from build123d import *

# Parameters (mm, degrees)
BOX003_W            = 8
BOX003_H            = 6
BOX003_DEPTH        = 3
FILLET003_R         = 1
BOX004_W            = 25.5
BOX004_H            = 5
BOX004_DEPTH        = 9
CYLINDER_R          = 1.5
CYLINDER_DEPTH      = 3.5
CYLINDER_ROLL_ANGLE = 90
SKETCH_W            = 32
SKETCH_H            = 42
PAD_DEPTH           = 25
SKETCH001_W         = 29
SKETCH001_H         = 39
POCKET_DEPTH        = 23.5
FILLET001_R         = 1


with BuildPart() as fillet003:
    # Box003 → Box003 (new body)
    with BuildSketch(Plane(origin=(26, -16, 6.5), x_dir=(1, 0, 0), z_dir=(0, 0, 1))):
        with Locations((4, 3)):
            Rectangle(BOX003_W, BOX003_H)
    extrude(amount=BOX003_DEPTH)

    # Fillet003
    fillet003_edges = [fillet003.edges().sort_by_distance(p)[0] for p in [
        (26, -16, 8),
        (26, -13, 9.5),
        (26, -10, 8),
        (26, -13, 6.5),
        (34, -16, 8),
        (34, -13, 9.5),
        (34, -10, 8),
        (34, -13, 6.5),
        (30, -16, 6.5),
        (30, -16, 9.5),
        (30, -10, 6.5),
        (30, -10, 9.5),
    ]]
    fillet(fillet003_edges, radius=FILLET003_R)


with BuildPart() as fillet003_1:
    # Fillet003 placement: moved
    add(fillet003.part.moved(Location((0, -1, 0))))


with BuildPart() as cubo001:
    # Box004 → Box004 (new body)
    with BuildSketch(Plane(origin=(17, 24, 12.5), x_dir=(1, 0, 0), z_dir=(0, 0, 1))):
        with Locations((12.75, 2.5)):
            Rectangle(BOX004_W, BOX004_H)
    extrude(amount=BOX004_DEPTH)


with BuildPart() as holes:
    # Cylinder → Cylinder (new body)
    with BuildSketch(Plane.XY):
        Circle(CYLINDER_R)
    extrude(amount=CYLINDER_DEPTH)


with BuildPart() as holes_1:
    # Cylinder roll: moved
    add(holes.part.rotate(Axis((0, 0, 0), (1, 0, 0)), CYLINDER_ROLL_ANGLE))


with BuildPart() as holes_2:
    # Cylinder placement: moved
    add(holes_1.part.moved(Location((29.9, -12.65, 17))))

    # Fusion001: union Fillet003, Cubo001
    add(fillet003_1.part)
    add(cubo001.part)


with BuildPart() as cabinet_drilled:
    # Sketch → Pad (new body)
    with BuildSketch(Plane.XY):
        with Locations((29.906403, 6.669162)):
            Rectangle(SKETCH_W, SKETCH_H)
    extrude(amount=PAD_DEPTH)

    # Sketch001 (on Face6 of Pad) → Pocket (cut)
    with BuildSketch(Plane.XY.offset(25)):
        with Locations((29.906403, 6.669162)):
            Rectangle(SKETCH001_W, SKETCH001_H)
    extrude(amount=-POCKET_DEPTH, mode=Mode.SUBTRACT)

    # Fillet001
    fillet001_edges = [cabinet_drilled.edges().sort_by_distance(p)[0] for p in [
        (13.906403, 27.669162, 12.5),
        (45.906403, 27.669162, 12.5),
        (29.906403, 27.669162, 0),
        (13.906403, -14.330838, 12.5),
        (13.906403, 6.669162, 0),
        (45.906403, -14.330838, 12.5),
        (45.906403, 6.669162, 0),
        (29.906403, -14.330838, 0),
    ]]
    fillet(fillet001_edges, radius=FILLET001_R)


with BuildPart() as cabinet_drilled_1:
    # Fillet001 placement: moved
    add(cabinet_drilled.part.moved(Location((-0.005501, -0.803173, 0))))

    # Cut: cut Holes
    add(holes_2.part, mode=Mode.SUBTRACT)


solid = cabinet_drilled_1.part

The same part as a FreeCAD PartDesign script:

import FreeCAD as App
import Part
import Sketcher


def edges_at(feature, points):
    """Names of the edges that pass closest to the given points."""
    edges = feature.Shape.Edges
    near = lambda p: min(range(len(edges)), key=lambda i: edges[i].distToShape(Part.Vertex(*p))[0])
    return sorted({f"Edge{near(p) + 1}" for p in points})

doc = App.newDocument("Part")
body = doc.addObject("PartDesign::Body", "Body")

# Sketch on XY plane
sketch1 = doc.addObject("Sketcher::SketchObject", "Sketch")
body.addObject(sketch1)
sketch1.AttachmentSupport = (doc.XY_Plane, [""])
sketch1.MapMode = "FlatFace"
sketch1.AttachmentOffset = App.Placement(App.Vector(0, 0, 6.5), App.Rotation())
sketch1.addGeometry([
    Part.LineSegment(App.Vector(26, -10, 0), App.Vector(26, -16, 0)),
    Part.LineSegment(App.Vector(26, -16, 0), App.Vector(34, -16, 0)),
    Part.LineSegment(App.Vector(34, -16, 0), App.Vector(34, -10, 0)),
    Part.LineSegment(App.Vector(34, -10, 0), App.Vector(26, -10, 0)),
], False)
sketch1.addConstraint([
    Sketcher.Constraint("Coincident", 0, 2, 1, 1),
    Sketcher.Constraint("Coincident", 1, 2, 2, 1),
    Sketcher.Constraint("Coincident", 2, 2, 3, 1),
    Sketcher.Constraint("Coincident", 3, 2, 0, 1),
    Sketcher.Constraint("Vertical", 0),
    Sketcher.Constraint("Horizontal", 1),
    Sketcher.Constraint("Vertical", 2),
    Sketcher.Constraint("Horizontal", 3),
    Sketcher.Constraint("DistanceX", 1, 1, 1, 2, 8.0),
    Sketcher.Constraint("DistanceY", 0, 2, 0, 1, 6.0),
    Sketcher.Constraint("DistanceX", -1, 1, 0, 2, 26.0),
    Sketcher.Constraint("DistanceY", 0, 2, -1, 1, 16.0),
])
pad1 = doc.addObject("PartDesign::Pad", "Pad")
body.addObject(pad1)
pad1.Profile = sketch1
pad1.Length = 3
doc.recompute()

fillet = doc.addObject("PartDesign::Fillet", "Fillet")
body.addObject(fillet)
fillet.Base = (pad1, ["Edge1"])
fillet.UseAllEdges = True
fillet.Radius = 1
body2 = doc.addObject("PartDesign::Body", "Body001")
doc.recompute()

body.Placement = App.Placement(App.Vector(0, -1, 0), App.Rotation(App.Vector(0, 0, 1), 0))
boolean = doc.addObject("PartDesign::Boolean", "Boolean")
body2.addObject(boolean)
boolean.Type = "Fuse"
boolean.addObjects([body])
body3 = doc.addObject("PartDesign::Body", "Body002")

# Sketch on XY plane
sketch2 = doc.addObject("Sketcher::SketchObject", "Sketch001")
body3.addObject(sketch2)
sketch2.AttachmentSupport = (doc.getObject("XY_Plane002"), [""])
sketch2.MapMode = "FlatFace"
sketch2.AttachmentOffset = App.Placement(App.Vector(0, 0, 12.5), App.Rotation())
sketch2.addGeometry([
    Part.LineSegment(App.Vector(17, 29, 0), App.Vector(17, 24, 0)),
    Part.LineSegment(App.Vector(17, 24, 0), App.Vector(42, 24, 0)),
    Part.LineSegment(App.Vector(42, 24, 0), App.Vector(42, 29, 0)),
    Part.LineSegment(App.Vector(42, 29, 0), App.Vector(17, 29, 0)),
], False)
sketch2.addConstraint([
    Sketcher.Constraint("Coincident", 0, 2, 1, 1),
    Sketcher.Constraint("Coincident", 1, 2, 2, 1),
    Sketcher.Constraint("Coincident", 2, 2, 3, 1),
    Sketcher.Constraint("Coincident", 3, 2, 0, 1),
    Sketcher.Constraint("Vertical", 0),
    Sketcher.Constraint("Horizontal", 1),
    Sketcher.Constraint("Vertical", 2),
    Sketcher.Constraint("Horizontal", 3),
    Sketcher.Constraint("DistanceY", 0, 2, 0, 1, 5.0),
    Sketcher.Constraint("DistanceX", 1, 1, 1, 2, 25.5),
    Sketcher.Constraint("DistanceX", -1, 1, 0, 2, 17.0),
    Sketcher.Constraint("DistanceY", -1, 1, 0, 2, 24.0),
])
pad2 = doc.addObject("PartDesign::Pad", "Pad001")
body3.addObject(pad2)
pad2.Profile = sketch2
pad2.Length = 9
body4 = doc.addObject("PartDesign::Body", "Body003")

# Sketch on XY plane
sketch3 = doc.addObject("Sketcher::SketchObject", "Sketch002")
body4.addObject(sketch3)
sketch3.AttachmentSupport = (doc.getObject("XY_Plane003"), [""])
sketch3.MapMode = "FlatFace"
sketch3.addGeometry(Part.Circle(App.Vector(0, 0, 0), App.Vector(0, 0, 1), 1.5), False)
sketch3.addConstraint([
    Sketcher.Constraint("Coincident", 0, 3, -1, 1),
    Sketcher.Constraint("Diameter", 0, 3.0),
])
pad3 = doc.addObject("PartDesign::Pad", "Pad002")
body4.addObject(pad3)
pad3.Profile = sketch3
pad3.Length = 3.5
body5 = doc.addObject("PartDesign::Body", "Body004")
doc.recompute()

body4.Placement = App.Placement(App.Vector(0, 0, 0), App.Rotation(App.Vector(1, 0, 0), 90))
boolean2 = doc.addObject("PartDesign::Boolean", "Boolean001")
body5.addObject(boolean2)
boolean2.Type = "Fuse"
boolean2.addObjects([body4])
body6 = doc.addObject("PartDesign::Body", "Body005")
body6.AllowCompound = True
doc.recompute()

body5.Placement = App.Placement(App.Vector(29.9, -12.65, 17), App.Rotation(App.Vector(0, 0, 1), 0))
boolean3 = doc.addObject("PartDesign::Boolean", "Boolean002")
body6.addObject(boolean3)
boolean3.Type = "Fuse"
boolean3.addObjects([body5])
doc.recompute()

boolean4 = doc.addObject("PartDesign::Boolean", "Boolean003")
body6.addObject(boolean4)
boolean4.Type = "Fuse"
boolean4.addObjects([body2])
doc.recompute()

boolean5 = doc.addObject("PartDesign::Boolean", "Boolean004")
body6.addObject(boolean5)
boolean5.Type = "Fuse"
boolean5.addObjects([body3])
body7 = doc.addObject("PartDesign::Body", "Body006")

# Sketch on XY plane
sketch4 = doc.addObject("Sketcher::SketchObject", "Sketch003")
body7.addObject(sketch4)
sketch4.AttachmentSupport = (doc.getObject("XY_Plane006"), [""])
sketch4.MapMode = "FlatFace"
sketch4.addGeometry([
    Part.LineSegment(App.Vector(14, 28, 0), App.Vector(14, -14, 0)),
    Part.LineSegment(App.Vector(14, -14, 0), App.Vector(46, -14, 0)),
    Part.LineSegment(App.Vector(46, -14, 0), App.Vector(46, 28, 0)),
    Part.LineSegment(App.Vector(46, 28, 0), App.Vector(14, 28, 0)),
], False)
sketch4.addConstraint([
    Sketcher.Constraint("Coincident", 0, 2, 1, 1),
    Sketcher.Constraint("Coincident", 1, 2, 2, 1),
    Sketcher.Constraint("Coincident", 2, 2, 3, 1),
    Sketcher.Constraint("Coincident", 3, 2, 0, 1),
    Sketcher.Constraint("Vertical", 0),
    Sketcher.Constraint("Horizontal", 1),
    Sketcher.Constraint("Vertical", 2),
    Sketcher.Constraint("Horizontal", 3),
    Sketcher.Constraint("DistanceX", 1, 1, 1, 2, 32.0),
    Sketcher.Constraint("DistanceY", 0, 2, 0, 1, 42.0),
    Sketcher.Constraint("DistanceY", -1, 1, 2, 2, 27.669162),
    Sketcher.Constraint("DistanceX", -1, 1, 0, 2, 13.906403),
])
pad4 = doc.addObject("PartDesign::Pad", "Pad003")
body7.addObject(pad4)
pad4.Profile = sketch4
pad4.Length = 25

# Sketch on XY plane
sketch5 = doc.addObject("Sketcher::SketchObject", "Sketch004")
body7.addObject(sketch5)
sketch5.AttachmentSupport = (doc.getObject("XY_Plane006"), [""])
sketch5.MapMode = "FlatFace"
sketch5.AttachmentOffset = App.Placement(App.Vector(0, 0, 25), App.Rotation())
sketch5.addGeometry([
    Part.LineSegment(App.Vector(15, 26, 0), App.Vector(15, -13, 0)),
    Part.LineSegment(App.Vector(15, -13, 0), App.Vector(44, -13, 0)),
    Part.LineSegment(App.Vector(44, -13, 0), App.Vector(44, 26, 0)),
    Part.LineSegment(App.Vector(44, 26, 0), App.Vector(15, 26, 0)),
], False)
sketch5.addConstraint([
    Sketcher.Constraint("Coincident", 0, 2, 1, 1),
    Sketcher.Constraint("Coincident", 1, 2, 2, 1),
    Sketcher.Constraint("Coincident", 2, 2, 3, 1),
    Sketcher.Constraint("Coincident", 3, 2, 0, 1),
    Sketcher.Constraint("Vertical", 0),
    Sketcher.Constraint("Horizontal", 1),
    Sketcher.Constraint("Vertical", 2),
    Sketcher.Constraint("Horizontal", 3),
    Sketcher.Constraint("DistanceX", 1, 1, 1, 2, 29.0),
    Sketcher.Constraint("DistanceY", 0, 2, 0, 1, 39.0),
    Sketcher.Constraint("DistanceY", -1, 1, 2, 2, 26.169162),
    Sketcher.Constraint("DistanceX", -1, 1, 0, 2, 15.406403),
])
pocket1 = doc.addObject("PartDesign::Pocket", "Pocket")
body7.addObject(pocket1)
pocket1.Profile = sketch5
pocket1.Length = 23.5
doc.recompute()

fillet2 = doc.addObject("PartDesign::Fillet", "Fillet001")
body7.addObject(fillet2)
fillet2.Base = (pocket1, edges_at(pocket1, [
    (13.906, 27.669, 12.5),
    (45.906, 27.669, 12.5),
    (29.906, 27.669, 0),
    (13.906, -14.331, 12.5),
    (13.906, 6.669, 0),
    (45.906, -14.331, 12.5),
    (45.906, 6.669, 0),
    (29.906, -14.331, 0),
]))
fillet2.Radius = 1
body8 = doc.addObject("PartDesign::Body", "Body007")
doc.recompute()

body7.Placement = App.Placement(App.Vector(-0.005501, -0.803173, 0), App.Rotation(App.Vector(0, 0, 1), 0))
boolean6 = doc.addObject("PartDesign::Boolean", "Boolean005")
body8.addObject(boolean6)
boolean6.Type = "Fuse"
boolean6.addObjects([body7])
doc.recompute()

boolean7 = doc.addObject("PartDesign::Boolean", "Boolean006")
body8.addObject(boolean7)
boolean7.Type = "Cut"
boolean7.addObjects([body6])

doc.recompute()
